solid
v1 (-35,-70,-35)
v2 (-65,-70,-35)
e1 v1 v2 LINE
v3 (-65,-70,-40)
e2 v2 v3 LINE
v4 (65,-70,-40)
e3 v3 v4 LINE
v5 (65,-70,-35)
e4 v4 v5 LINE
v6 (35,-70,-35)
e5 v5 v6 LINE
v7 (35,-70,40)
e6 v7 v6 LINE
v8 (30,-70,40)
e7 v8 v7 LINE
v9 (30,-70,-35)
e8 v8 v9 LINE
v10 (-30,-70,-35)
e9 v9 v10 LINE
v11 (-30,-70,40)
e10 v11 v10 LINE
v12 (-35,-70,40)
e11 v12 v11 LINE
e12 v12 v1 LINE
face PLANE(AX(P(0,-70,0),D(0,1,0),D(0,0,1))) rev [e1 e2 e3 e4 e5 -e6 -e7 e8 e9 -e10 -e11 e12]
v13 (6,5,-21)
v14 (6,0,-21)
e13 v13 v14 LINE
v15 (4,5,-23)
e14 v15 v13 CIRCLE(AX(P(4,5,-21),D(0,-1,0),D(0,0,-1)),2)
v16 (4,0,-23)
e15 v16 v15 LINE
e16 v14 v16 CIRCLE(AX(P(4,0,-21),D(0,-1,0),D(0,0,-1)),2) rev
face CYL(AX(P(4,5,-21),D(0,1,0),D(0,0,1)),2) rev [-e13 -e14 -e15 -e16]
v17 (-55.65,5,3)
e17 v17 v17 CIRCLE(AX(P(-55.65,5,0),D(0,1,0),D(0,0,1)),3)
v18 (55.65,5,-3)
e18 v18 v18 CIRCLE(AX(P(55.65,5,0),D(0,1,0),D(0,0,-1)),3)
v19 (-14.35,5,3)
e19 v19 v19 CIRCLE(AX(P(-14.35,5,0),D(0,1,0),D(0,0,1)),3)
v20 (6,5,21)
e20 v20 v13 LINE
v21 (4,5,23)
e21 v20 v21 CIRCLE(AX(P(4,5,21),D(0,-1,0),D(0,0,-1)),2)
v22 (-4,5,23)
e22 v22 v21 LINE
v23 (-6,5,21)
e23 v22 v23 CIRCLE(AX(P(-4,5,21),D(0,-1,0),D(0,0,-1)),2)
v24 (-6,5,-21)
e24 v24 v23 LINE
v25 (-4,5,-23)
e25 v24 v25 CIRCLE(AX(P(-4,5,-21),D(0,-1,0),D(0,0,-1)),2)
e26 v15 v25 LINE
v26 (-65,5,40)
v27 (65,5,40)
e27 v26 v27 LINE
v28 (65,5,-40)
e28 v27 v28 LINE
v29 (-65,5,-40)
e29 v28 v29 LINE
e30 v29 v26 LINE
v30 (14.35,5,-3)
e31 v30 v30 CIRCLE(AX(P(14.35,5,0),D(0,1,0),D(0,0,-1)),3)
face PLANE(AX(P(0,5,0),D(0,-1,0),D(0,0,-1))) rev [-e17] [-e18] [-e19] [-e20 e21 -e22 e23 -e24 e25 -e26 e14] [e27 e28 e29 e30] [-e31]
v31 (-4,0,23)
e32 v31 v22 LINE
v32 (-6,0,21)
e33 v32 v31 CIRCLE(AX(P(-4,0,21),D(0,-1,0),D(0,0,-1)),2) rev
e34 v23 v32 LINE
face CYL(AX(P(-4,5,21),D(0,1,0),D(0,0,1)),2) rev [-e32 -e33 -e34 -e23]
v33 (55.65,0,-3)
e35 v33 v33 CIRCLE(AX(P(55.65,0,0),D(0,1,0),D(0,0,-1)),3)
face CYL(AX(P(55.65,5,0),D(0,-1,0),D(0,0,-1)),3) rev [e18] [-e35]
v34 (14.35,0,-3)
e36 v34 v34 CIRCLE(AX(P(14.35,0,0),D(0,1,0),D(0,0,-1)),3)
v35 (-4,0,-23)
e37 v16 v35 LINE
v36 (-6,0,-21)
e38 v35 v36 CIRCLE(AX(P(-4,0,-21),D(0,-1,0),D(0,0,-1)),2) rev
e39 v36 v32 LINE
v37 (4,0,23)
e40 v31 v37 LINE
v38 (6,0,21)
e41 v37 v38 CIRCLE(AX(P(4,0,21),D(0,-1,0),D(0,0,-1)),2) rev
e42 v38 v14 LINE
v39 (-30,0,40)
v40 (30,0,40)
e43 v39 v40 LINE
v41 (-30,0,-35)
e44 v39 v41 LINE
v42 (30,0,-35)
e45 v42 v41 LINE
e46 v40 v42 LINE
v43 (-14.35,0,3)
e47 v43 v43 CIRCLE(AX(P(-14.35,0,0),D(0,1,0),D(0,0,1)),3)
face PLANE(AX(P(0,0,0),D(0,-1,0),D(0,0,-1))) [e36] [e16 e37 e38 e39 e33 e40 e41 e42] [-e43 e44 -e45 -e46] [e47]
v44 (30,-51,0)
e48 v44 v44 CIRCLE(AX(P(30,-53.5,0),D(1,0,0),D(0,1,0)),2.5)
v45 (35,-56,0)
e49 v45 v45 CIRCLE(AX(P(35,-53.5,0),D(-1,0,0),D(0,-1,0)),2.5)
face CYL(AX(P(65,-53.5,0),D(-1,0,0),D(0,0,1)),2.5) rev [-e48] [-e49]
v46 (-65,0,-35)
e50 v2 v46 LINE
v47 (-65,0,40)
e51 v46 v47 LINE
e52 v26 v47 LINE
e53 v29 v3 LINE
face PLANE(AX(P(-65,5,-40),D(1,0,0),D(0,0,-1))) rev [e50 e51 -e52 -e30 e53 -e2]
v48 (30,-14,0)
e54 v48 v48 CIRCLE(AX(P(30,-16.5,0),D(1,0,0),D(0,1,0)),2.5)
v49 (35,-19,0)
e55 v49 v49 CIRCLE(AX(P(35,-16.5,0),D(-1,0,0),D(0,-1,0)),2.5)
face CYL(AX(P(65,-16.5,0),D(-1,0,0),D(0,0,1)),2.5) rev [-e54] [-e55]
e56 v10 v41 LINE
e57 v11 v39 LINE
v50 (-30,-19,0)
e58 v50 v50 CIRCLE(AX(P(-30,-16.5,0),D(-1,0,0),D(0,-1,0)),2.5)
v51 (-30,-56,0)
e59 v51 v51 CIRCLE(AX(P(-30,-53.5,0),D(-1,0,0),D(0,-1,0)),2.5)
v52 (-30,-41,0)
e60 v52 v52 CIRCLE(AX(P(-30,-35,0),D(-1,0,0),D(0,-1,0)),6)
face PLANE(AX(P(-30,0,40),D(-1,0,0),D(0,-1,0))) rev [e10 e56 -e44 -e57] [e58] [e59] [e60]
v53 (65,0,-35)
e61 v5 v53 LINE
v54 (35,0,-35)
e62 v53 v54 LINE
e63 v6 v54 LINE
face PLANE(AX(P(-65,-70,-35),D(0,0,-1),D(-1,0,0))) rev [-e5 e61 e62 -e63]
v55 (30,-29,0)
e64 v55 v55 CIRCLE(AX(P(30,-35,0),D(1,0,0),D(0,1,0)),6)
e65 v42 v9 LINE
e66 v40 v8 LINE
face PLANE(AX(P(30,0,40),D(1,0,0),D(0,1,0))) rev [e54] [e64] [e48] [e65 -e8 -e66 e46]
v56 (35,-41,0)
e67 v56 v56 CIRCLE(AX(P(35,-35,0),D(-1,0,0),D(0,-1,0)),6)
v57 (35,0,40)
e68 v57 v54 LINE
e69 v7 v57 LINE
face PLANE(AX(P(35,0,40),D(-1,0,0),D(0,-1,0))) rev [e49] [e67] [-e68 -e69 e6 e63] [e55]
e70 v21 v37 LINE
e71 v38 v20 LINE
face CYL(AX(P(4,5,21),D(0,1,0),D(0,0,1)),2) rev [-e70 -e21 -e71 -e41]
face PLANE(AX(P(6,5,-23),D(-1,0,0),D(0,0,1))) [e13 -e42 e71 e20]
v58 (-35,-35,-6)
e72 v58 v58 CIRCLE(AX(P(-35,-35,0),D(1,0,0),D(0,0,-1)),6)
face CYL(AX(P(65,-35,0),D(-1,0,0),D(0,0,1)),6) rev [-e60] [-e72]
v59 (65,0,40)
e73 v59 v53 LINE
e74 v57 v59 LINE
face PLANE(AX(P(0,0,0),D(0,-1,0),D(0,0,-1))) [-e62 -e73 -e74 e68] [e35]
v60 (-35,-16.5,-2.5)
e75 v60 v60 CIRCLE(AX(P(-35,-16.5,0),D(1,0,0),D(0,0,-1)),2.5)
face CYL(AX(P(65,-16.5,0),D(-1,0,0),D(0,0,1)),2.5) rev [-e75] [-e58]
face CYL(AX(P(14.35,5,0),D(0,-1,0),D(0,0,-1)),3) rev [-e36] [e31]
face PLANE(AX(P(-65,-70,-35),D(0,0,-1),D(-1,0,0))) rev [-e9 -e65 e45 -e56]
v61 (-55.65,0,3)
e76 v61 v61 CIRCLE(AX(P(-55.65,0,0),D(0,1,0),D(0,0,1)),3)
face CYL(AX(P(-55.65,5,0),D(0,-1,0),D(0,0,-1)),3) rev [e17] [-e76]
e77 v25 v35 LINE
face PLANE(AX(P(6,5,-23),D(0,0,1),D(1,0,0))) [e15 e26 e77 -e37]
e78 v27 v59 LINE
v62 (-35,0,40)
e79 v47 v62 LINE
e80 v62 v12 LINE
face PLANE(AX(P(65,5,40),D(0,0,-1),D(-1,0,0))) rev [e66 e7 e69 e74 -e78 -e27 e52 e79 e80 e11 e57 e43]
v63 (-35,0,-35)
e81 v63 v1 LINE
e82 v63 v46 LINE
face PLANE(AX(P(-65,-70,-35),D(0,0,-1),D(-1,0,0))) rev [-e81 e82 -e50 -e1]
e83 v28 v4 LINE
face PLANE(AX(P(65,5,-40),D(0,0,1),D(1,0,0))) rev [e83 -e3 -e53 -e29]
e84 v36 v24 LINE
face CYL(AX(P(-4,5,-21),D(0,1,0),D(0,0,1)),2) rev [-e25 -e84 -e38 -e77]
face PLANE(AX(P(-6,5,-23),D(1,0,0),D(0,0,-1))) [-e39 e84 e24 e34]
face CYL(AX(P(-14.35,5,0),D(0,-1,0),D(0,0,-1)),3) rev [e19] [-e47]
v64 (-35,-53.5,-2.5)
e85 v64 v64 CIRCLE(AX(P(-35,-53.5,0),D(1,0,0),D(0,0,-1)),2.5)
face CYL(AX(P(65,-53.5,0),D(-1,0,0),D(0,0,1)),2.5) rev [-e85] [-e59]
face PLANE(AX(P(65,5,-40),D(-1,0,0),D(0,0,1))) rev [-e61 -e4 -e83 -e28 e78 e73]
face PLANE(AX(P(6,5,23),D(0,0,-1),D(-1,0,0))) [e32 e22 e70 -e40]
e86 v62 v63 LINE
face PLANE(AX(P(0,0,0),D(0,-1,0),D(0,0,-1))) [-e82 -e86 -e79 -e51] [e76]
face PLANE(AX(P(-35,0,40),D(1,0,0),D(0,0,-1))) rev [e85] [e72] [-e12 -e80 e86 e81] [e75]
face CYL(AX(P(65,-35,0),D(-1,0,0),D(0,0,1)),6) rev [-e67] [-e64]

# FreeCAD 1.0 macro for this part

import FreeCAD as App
import Part
import Sketcher


def edges_at(feature, points):
    """Names of the edges that pass closest to the given points."""
    edges = feature.Shape.Edges
    near = lambda p: min(range(len(edges)), key=lambda i: edges[i].distToShape(Part.Vertex(*p))[0])
    return sorted({f"Edge{near(p) + 1}" for p in points})

doc = App.newDocument("Part")
body = doc.addObject("PartDesign::Body", "Body")

# Sketch on XZ plane
sketch1 = body.newObject("Sketcher::SketchObject", "Sketch")
sketch1.AttachmentSupport = (doc.getObject("XZ_Plane"), [""])
sketch1.MapMode = "FlatFace"
sketch1.addGeometry([
    Part.LineSegment(App.Vector(-65, -40, 0), App.Vector(-65, 40, 0)),  # 0
    Part.LineSegment(App.Vector(-65, 40, 0), App.Vector(65, 40, 0)),  # 1
    Part.LineSegment(App.Vector(65, 40, 0), App.Vector(65, -40, 0)),  # 2
    Part.LineSegment(App.Vector(65, -40, 0), App.Vector(-65, -40, 0)),  # 3
    Part.Circle(App.Vector(-55.6, 0, 0), App.Vector(0, 0, 1), 3),  # 4
    Part.Circle(App.Vector(-14.3, 0, 0), App.Vector(0, 0, 1), 3),  # 5
    Part.LineSegment(App.Vector(6, 23, 0), App.Vector(-6, 23, 0)),  # 6
    Part.LineSegment(App.Vector(-6, 23, 0), App.Vector(-6, -23, 0)),  # 7
    Part.LineSegment(App.Vector(-6, -23, 0), App.Vector(6, -23, 0)),  # 8
    Part.LineSegment(App.Vector(6, -23, 0), App.Vector(6, 23, 0)),  # 9
    Part.Circle(App.Vector(14.3, 0, 0), App.Vector(0, 0, 1), 3),  # 10
    Part.Circle(App.Vector(55.6, 0, 0), App.Vector(0, 0, 1), 3),  # 11
], False)
sketch1.addConstraint([
    Sketcher.Constraint("Coincident", 0, 2, 1, 1),
    Sketcher.Constraint("Coincident", 1, 2, 2, 1),
    Sketcher.Constraint("Coincident", 2, 2, 3, 1),
    Sketcher.Constraint("Coincident", 3, 2, 0, 1),
    Sketcher.Constraint("Coincident", 6, 2, 7, 1),
    Sketcher.Constraint("Coincident", 7, 2, 8, 1),
    Sketcher.Constraint("Coincident", 8, 2, 9, 1),
    Sketcher.Constraint("Coincident", 9, 2, 6, 1),
    Sketcher.Constraint("Vertical", 0),
    Sketcher.Constraint("Horizontal", 1),
    Sketcher.Constraint("Vertical", 2),
    Sketcher.Constraint("Horizontal", 3),
    Sketcher.Constraint("Horizontal", 6),
    Sketcher.Constraint("Vertical", 7),
    Sketcher.Constraint("Horizontal", 8),
    Sketcher.Constraint("Vertical", 9),
    Sketcher.Constraint("Equal", 4, 5),
    Sketcher.Constraint("Equal", 5, 10),
    Sketcher.Constraint("Equal", 10, 11),
    Sketcher.Constraint("Symmetric", 5, 3, 10, 3, -1, 1),
    Sketcher.Constraint("Symmetric", 4, 3, 11, 3, -1, 1),
    Sketcher.Constraint("Symmetric", 0, 2, 2, 2, -1, 1),
    Sketcher.Constraint("Symmetric", 6, 2, 8, 2, -1, 1),
    Sketcher.Constraint("PointOnObject", 4, 3, -1),
    Sketcher.Constraint("PointOnObject", 5, 3, -1),
    Sketcher.Constraint("Diameter", 4, 6.0),
    Sketcher.Constraint("DistanceX", 1, 1, 1, 2, 130.0),
    Sketcher.Constraint("DistanceX", 6, 2, 6, 1, 12.0),
    Sketcher.Constraint("DistanceY", 0, 1, 0, 2, 80.0),
    Sketcher.Constraint("DistanceY", 7, 2, 7, 1, 46.0),
    Sketcher.Constraint("DistanceX", 4, 3, 10, 3, 70.0),
    Sketcher.Constraint("DistanceX", 4, 3, 5, 3, 41.3),
])
pad1 = body.newObject("PartDesign::Pad", "Pad")
pad1.Profile = sketch1
pad1.Length = 5
pad1.Reversed = True
doc.recompute()

fillet = body.newObject("PartDesign::Fillet", "Fillet")
fillet.Base = (pad1, edges_at(pad1, [
    (-6, 2.5, -23),
    (-6, 2.5, 23),
    (6, 2.5, 23),
    (6, 2.5, -23),
]))
fillet.Radius = 2

# Sketch on XZ plane
sketch2 = body.newObject("Sketcher::SketchObject", "Sketch001")
sketch2.AttachmentSupport = (doc.getObject("XZ_Plane"), [""])
sketch2.MapMode = "FlatFace"
sketch2.addGeometry([
    Part.LineSegment(App.Vector(-65, -35, 0), App.Vector(-65, -40, 0)),
    Part.LineSegment(App.Vector(-65, -40, 0), App.Vector(65, -40, 0)),
    Part.LineSegment(App.Vector(65, -40, 0), App.Vector(65, -35, 0)),
    Part.LineSegment(App.Vector(65, -35, 0), App.Vector(-65, -35, 0)),
], False)
sketch2.addConstraint([
    Sketcher.Constraint("Coincident", 0, 2, 1, 1),
    Sketcher.Constraint("Coincident", 1, 2, 2, 1),
    Sketcher.Constraint("Coincident", 2, 2, 3, 1),
    Sketcher.Constraint("Coincident", 3, 2, 0, 1),
    Sketcher.Constraint("Vertical", 0),
    Sketcher.Constraint("Horizontal", 1),
    Sketcher.Constraint("Vertical", 2),
    Sketcher.Constraint("Horizontal", 3),
    Sketcher.Constraint("DistanceX", 1, 1, 1, 2, 130.0),
    Sketcher.Constraint("DistanceY", 0, 2, 0, 1, 5.0),
    Sketcher.Constraint("DistanceX", 0, 2, -1, 1, 65.0),
    Sketcher.Constraint("DistanceY", 0, 2, -1, 1, 40.0),
])
pad2 = body.newObject("PartDesign::Pad", "Pad001")
pad2.Profile = sketch2
pad2.Length = 70

# Sketch on XY plane
sketch3 = body.newObject("Sketcher::SketchObject", "Sketch002")
sketch3.AttachmentSupport = (doc.getObject("XY_Plane"), [""])
sketch3.MapMode = "FlatFace"
sketch3.AttachmentOffset = App.Placement(App.Vector(0, 0, -35), App.Rotation())
sketch3.addGeometry([
    Part.LineSegment(App.Vector(-35, 0, 0), App.Vector(-35, -70, 0)),  # 0
    Part.LineSegment(App.Vector(-35, -70, 0), App.Vector(-30, -70, 0)),  # 1
    Part.LineSegment(App.Vector(-30, -70, 0), App.Vector(-30, 0, 0)),  # 2
    Part.LineSegment(App.Vector(-30, 0, 0), App.Vector(-35, 0, 0)),  # 3
    Part.LineSegment(App.Vector(30, 0, 0), App.Vector(30, -70, 0)),  # 4
    Part.LineSegment(App.Vector(30, -70, 0), App.Vector(35, -70, 0)),  # 5
    Part.LineSegment(App.Vector(35, -70, 0), App.Vector(35, 0, 0)),  # 6
    Part.LineSegment(App.Vector(35, 0, 0), App.Vector(30, 0, 0)),  # 7
], False)
sketch3.addConstraint([
    Sketcher.Constraint("Coincident", 0, 2, 1, 1),
    Sketcher.Constraint("Coincident", 1, 2, 2, 1),
    Sketcher.Constraint("Coincident", 2, 2, 3, 1),
    Sketcher.Constraint("Coincident", 3, 2, 0, 1),
    Sketcher.Constraint("Coincident", 4, 2, 5, 1),
    Sketcher.Constraint("Coincident", 5, 2, 6, 1),
    Sketcher.Constraint("Coincident", 6, 2, 7, 1),
    Sketcher.Constraint("Coincident", 7, 2, 4, 1),
    Sketcher.Constraint("Vertical", 0),
    Sketcher.Constraint("Horizontal", 1),
    Sketcher.Constraint("Vertical", 2),
    Sketcher.Constraint("Horizontal", 3),
    Sketcher.Constraint("Vertical", 4),
    Sketcher.Constraint("Horizontal", 5),
    Sketcher.Constraint("Vertical", 6),
    Sketcher.Constraint("Horizontal", 7),
    Sketcher.Constraint("Symmetric", 3, 2, 6, 2, -1, 1),
    Sketcher.Constraint("Symmetric", 1, 2, 4, 2, -2),
    Sketcher.Constraint("PointOnObject", 2, 2, -1),
    Sketcher.Constraint("DistanceX", 1, 1, 1, 2, 5.0),
    Sketcher.Constraint("DistanceY", 0, 2, 0, 1, 70.0),
    Sketcher.Constraint("DistanceX", 0, 2, -1, 1, 35.0),
])
pad3 = body.newObject("PartDesign::Pad", "Pad002")
pad3.Profile = sketch3
pad3.Length = 75

# Sketch on YZ plane
sketch4 = body.newObject("Sketcher::SketchObject", "Sketch003")
sketch4.AttachmentSupport = (doc.getObject("YZ_Plane"), [""])
sketch4.MapMode = "FlatFace"
sketch4.AttachmentOffset = App.Placement(App.Vector(0, 0, -35), App.Rotation())
sketch4.addGeometry([
    Part.Circle(App.Vector(-35, 0, 0), App.Vector(0, 0, 1), 6),
    Part.Circle(App.Vector(-16.5, 0, 0), App.Vector(0, 0, 1), 2.5),
    Part.Circle(App.Vector(-53.5, 0, 0), App.Vector(0, 0, 1), 2.5),
], False)
sketch4.addConstraint([
    Sketcher.Constraint("Equal", 1, 2),
    Sketcher.Constraint("PointOnObject", 0, 3, -1),
    Sketcher.Constraint("PointOnObject", 1, 3, -1),
    Sketcher.Constraint("PointOnObject", 2, 3, -1),
    Sketcher.Constraint("Diameter", 0, 12.0),
    Sketcher.Constraint("Diameter", 1, 5.0),
    Sketcher.Constraint("DistanceX", 0, 3, -1, 1, 35.0),
    Sketcher.Constraint("DistanceX", 2, 3, 1, 3, 37.0),
    Sketcher.Constraint("DistanceX", 1, 3, -1, 1, 16.5),
])
pocket1 = body.newObject("PartDesign::Pocket", "Pocket")
pocket1.Profile = sketch4
pocket1.Type = "ThroughAll"
pocket1.Midplane = True

doc.recompute()
